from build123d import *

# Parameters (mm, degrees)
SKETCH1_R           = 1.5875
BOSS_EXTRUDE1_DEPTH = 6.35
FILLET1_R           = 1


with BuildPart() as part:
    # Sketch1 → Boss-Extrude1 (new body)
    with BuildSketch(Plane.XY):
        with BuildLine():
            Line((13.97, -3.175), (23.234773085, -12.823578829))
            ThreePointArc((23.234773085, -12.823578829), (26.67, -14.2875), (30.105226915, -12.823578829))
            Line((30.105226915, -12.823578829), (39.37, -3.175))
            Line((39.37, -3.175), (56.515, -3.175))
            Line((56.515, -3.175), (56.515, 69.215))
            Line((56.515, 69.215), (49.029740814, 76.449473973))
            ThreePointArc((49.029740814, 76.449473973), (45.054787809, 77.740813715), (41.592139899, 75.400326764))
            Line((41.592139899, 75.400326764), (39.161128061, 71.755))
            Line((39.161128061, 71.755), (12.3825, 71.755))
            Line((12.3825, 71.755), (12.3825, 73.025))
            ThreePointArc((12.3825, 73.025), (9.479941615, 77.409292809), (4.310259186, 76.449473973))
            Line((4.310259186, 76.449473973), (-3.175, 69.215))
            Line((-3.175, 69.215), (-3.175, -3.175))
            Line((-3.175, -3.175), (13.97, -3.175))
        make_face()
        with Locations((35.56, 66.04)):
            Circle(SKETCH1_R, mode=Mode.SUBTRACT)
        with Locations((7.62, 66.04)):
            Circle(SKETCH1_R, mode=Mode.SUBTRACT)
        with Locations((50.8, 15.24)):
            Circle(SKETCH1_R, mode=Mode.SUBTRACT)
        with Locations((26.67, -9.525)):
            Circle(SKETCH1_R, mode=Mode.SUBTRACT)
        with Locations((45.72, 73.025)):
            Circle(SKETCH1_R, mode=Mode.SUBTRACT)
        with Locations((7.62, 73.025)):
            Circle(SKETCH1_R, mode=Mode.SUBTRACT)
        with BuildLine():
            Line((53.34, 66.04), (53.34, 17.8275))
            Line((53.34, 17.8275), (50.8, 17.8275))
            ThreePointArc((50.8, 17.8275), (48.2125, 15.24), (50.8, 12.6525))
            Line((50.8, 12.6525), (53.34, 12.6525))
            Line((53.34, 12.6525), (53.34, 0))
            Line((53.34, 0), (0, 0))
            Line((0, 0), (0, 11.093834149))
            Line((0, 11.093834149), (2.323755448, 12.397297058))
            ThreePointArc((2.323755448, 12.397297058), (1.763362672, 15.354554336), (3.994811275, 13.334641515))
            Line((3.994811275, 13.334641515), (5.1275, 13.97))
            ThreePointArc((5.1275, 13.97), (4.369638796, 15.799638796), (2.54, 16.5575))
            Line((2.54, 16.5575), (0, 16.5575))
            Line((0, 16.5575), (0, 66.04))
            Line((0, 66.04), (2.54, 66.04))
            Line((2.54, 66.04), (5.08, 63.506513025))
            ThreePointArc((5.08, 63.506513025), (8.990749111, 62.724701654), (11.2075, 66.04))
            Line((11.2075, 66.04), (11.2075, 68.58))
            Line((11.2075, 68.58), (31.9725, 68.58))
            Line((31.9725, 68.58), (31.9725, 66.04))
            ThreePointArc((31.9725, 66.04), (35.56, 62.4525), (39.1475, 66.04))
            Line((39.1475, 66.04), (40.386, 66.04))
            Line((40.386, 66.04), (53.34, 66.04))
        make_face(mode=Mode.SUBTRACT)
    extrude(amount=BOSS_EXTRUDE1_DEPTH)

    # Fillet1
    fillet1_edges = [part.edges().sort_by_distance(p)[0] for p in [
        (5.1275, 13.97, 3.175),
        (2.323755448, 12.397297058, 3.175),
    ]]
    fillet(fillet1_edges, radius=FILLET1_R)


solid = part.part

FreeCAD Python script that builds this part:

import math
import FreeCAD as App
import Part
import Sketcher

V = App.Vector
Q = App.Units.Quantity


def edges_at(feature, points):
    """Names of the edges that pass closest to the given points."""
    edges = feature.Shape.Edges
    near = lambda p: min(range(len(edges)), key=lambda i: edges[i].distToShape(Part.Vertex(*p))[0])
    return sorted({f"Edge{near(p) + 1}" for p in points})

doc = App.newDocument("Part")
params = doc.addObject("Spreadsheet::Sheet", "Params")
for row, (alias, value) in enumerate([
    ("sketch1_diameter", "0.125 in"),
    ("sketch1_width", "0.1 in"),
    ("sketch1_width2", "2.1 in"),
    ("sketch1_radius", "0.1875 in"),
    ("sketch1_height", "2.85 in"),
    ("pad1_length", "0.25 in"),
    ("fillet_radius", "1 mm"),
], start=1):
    params.set(f"A{row}", alias)
    params.set(f"B{row}", "=" + value)
    params.setAlias(f"B{row}", alias)

body = doc.addObject("PartDesign::Body", "Body")

sketch1 = body.newObject("Sketcher::SketchObject", "Sketch")
sketch1.AttachmentSupport = (doc.getObject("XY_Plane"), [""])
sketch1.MapMode = "FlatFace"
sketch1.addGeometry(Part.LineSegment(V(14, -3.2, 0), V(23.2, -12.8, 0)), False)
sketch1.addGeometry(Part.ArcOfCircle(Part.Circle(V(26.7, -9.5, 0), V(0, 0, 1), 4.8), math.radians(-136), math.radians(-44)), False)
sketch1.addGeometry(Part.LineSegment(V(30.1, -12.8, 0), V(39.4, -3.2, 0)), False)
sketch1.addGeometry(Part.LineSegment(V(39.4, -3.2, 0), V(56.5, -3.2, 0)), False)
sketch1.addGeometry(Part.LineSegment(V(56.5, -3.2, 0), V(56.5, 69.2, 0)), False)
sketch1.addGeometry(Part.LineSegment(V(56.5, 69.2, 0), V(49, 76.4, 0)), False)
sketch1.addGeometry(Part.ArcOfCircle(Part.Circle(V(45.7, 73, 0), V(0, 0, 1), 4.8), math.radians(46), math.radians(150)), False)
sketch1.addGeometry(Part.LineSegment(V(41.6, 75.4, 0), V(39.2, 71.8, 0)), False)
sketch1.addGeometry(Part.LineSegment(V(39.2, 71.8, 0), V(12.4, 71.8, 0)), False)
sketch1.addGeometry(Part.LineSegment(V(12.4, 71.8, 0), V(12.4, 73, 0)), False)
sketch1.addGeometry(Part.ArcOfCircle(Part.Circle(V(7.6, 73, 0), V(0, 0, 1), 4.8), math.radians(0), math.radians(134)), False)
sketch1.addGeometry(Part.LineSegment(V(4.3, 76.4, 0), V(-3.2, 69.2, 0)), False)
sketch1.addGeometry(Part.LineSegment(V(-3.2, 69.2, 0), V(-3.2, -3.2, 0)), False)
sketch1.addGeometry(Part.LineSegment(V(-3.2, -3.2, 0), V(14, -3.2, 0)), False)
sketch1.addGeometry(Part.Circle(V(26.7, -9.5, 0), V(0, 0, 1), 1.6), False)
sketch1.addGeometry(Part.Circle(V(50.8, 15.2, 0), V(0, 0, 1), 1.6), False)
sketch1.addGeometry(Part.LineSegment(V(39.1, 66, 0), V(53.3, 66, 0)), False)
sketch1.addGeometry(Part.LineSegment(V(53.3, 66, 0), V(53.3, 17.8, 0)), False)
sketch1.addGeometry(Part.LineSegment(V(53.3, 17.8, 0), V(50.8, 17.8, 0)), False)
sketch1.addGeometry(Part.ArcOfCircle(Part.Circle(V(50.8, 15.2, 0), V(0, 0, 1), 2.6), math.radians(90), math.radians(270)), False)
sketch1.addGeometry(Part.LineSegment(V(50.8, 12.7, 0), V(53.3, 12.7, 0)), False)
sketch1.addGeometry(Part.LineSegment(V(53.3, 12.7, 0), V(53.3, 0, 0)), False)
sketch1.addGeometry(Part.LineSegment(V(53.3, 0, 0), V(0, 0, 0)), False)
sketch1.addGeometry(Part.LineSegment(V(0, 0, 0), V(0, 11.1, 0)), False)
sketch1.addGeometry(Part.LineSegment(V(0, 11.1, 0), V(2.3, 12.4, 0)), False)
sketch1.addGeometry(Part.ArcOfCircle(Part.Circle(V(2.5, 14, 0), V(0, 0, 1), 1.6), math.radians(-24), math.radians(262)), False)
sketch1.addGeometry(Part.LineSegment(V(4, 13.3, 0), V(5.1, 14, 0)), False)
sketch1.addGeometry(Part.ArcOfCircle(Part.Circle(V(2.5, 14, 0), V(0, 0, 1), 2.6), math.radians(0), math.radians(90)), False)
sketch1.addGeometry(Part.LineSegment(V(2.5, 16.6, 0), V(0, 16.6, 0)), False)
sketch1.addGeometry(Part.LineSegment(V(0, 16.6, 0), V(0, 66, 0)), False)
sketch1.addGeometry(Part.LineSegment(V(0, 66, 0), V(2.5, 66, 0)), False)
sketch1.addGeometry(Part.LineSegment(V(2.5, 66, 0), V(5.1, 63.5, 0)), False)
sketch1.addGeometry(Part.ArcOfCircle(Part.Circle(V(7.6, 66, 0), V(0, 0, 1), 3.6), math.radians(-135), math.radians(0)), False)
sketch1.addGeometry(Part.LineSegment(V(11.2, 66, 0), V(11.2, 68.6, 0)), False)
sketch1.addGeometry(Part.LineSegment(V(11.2, 68.6, 0), V(32, 68.6, 0)), False)
sketch1.addGeometry(Part.LineSegment(V(32, 68.6, 0), V(32, 66, 0)), False)
sketch1.addGeometry(Part.ArcOfCircle(Part.Circle(V(35.6, 66, 0), V(0, 0, 1), 3.6), math.radians(180), math.radians(360)), False)
sketch1.addGeometry(Part.Circle(V(7.6, 66, 0), V(0, 0, 1), 1.6), False)
sketch1.addGeometry(Part.Circle(V(7.6, 73, 0), V(0, 0, 1), 1.6), False)
sketch1.addGeometry(Part.Circle(V(35.6, 66, 0), V(0, 0, 1), 1.6), False)
sketch1.addGeometry(Part.Circle(V(45.7, 73, 0), V(0, 0, 1), 1.6), False)
sketch1.addConstraint(Sketcher.Constraint("Tangent", 0, 2, 1, 1))
sketch1.addConstraint(Sketcher.Constraint("Tangent", 1, 2, 2, 1))
sketch1.addConstraint(Sketcher.Constraint("Coincident", 2, 2, 3, 1))
sketch1.addConstraint(Sketcher.Constraint("Coincident", 3, 2, 4, 1))
sketch1.addConstraint(Sketcher.Constraint("Coincident", 4, 2, 5, 1))
sketch1.addConstraint(Sketcher.Constraint("Tangent", 5, 2, 6, 1))
sketch1.addConstraint(Sketcher.Constraint("Coincident", 6, 2, 7, 1))
sketch1.addConstraint(Sketcher.Constraint("Coincident", 7, 2, 8, 1))
sketch1.addConstraint(Sketcher.Constraint("Coincident", 8, 2, 9, 1))
sketch1.addConstraint(Sketcher.Constraint("Tangent", 9, 2, 10, 1))
sketch1.addConstraint(Sketcher.Constraint("Tangent", 10, 2, 11, 1))
sketch1.addConstraint(Sketcher.Constraint("Coincident", 11, 2, 12, 1))
sketch1.addConstraint(Sketcher.Constraint("Coincident", 12, 2, 13, 1))
sketch1.addConstraint(Sketcher.Constraint("Coincident", 13, 2, 0, 1))
sketch1.addConstraint(Sketcher.Constraint("Coincident", 16, 2, 17, 1))
sketch1.addConstraint(Sketcher.Constraint("Coincident", 17, 2, 18, 1))
sketch1.addConstraint(Sketcher.Constraint("Tangent", 18, 2, 19, 1))
sketch1.addConstraint(Sketcher.Constraint("Tangent", 19, 2, 20, 1))
sketch1.addConstraint(Sketcher.Constraint("Coincident", 20, 2, 21, 1))
sketch1.addConstraint(Sketcher.Constraint("Coincident", 21, 2, 22, 1))
sketch1.addConstraint(Sketcher.Constraint("Coincident", 22, 2, 23, 1))
sketch1.addConstraint(Sketcher.Constraint("Coincident", 23, 2, 24, 1))
sketch1.addConstraint(Sketcher.Constraint("Coincident", 24, 2, 25, 2))
sketch1.addConstraint(Sketcher.Constraint("Coincident", 25, 1, 26, 1))
sketch1.addConstraint(Sketcher.Constraint("Coincident", 26, 2, 27, 1))
sketch1.addConstraint(Sketcher.Constraint("Tangent", 27, 2, 28, 1))
sketch1.addConstraint(Sketcher.Constraint("Coincident", 28, 2, 29, 1))
sketch1.addConstraint(Sketcher.Constraint("Coincident", 29, 2, 30, 1))
sketch1.addConstraint(Sketcher.Constraint("Coincident", 30, 2, 31, 1))
sketch1.addConstraint(Sketcher.Constraint("Coincident", 31, 2, 32, 1))
sketch1.addConstraint(Sketcher.Constraint("Tangent", 32, 2, 33, 1))
sketch1.addConstraint(Sketcher.Constraint("Coincident", 33, 2, 34, 1))
sketch1.addConstraint(Sketcher.Constraint("Coincident", 34, 2, 35, 1))
sketch1.addConstraint(Sketcher.Constraint("Tangent", 35, 2, 36, 1))
sketch1.addConstraint(Sketcher.Constraint("Coincident", 36, 2, 16, 1))
sketch1.addConstraint(Sketcher.Constraint("Horizontal", 3))
sketch1.addConstraint(Sketcher.Constraint("Vertical", 4))
sketch1.addConstraint(Sketcher.Constraint("Horizontal", 8))
sketch1.addConstraint(Sketcher.Constraint("Vertical", 9))
sketch1.addConstraint(Sketcher.Constraint("Vertical", 12))
sketch1.addConstraint(Sketcher.Constraint("Horizontal", 13))
sketch1.addConstraint(Sketcher.Constraint("Horizontal", 16))
sketch1.addConstraint(Sketcher.Constraint("Vertical", 17))
sketch1.addConstraint(Sketcher.Constraint("Horizontal", 18))
sketch1.addConstraint(Sketcher.Constraint("Horizontal", 20))
sketch1.addConstraint(Sketcher.Constraint("Vertical", 21))
sketch1.addConstraint(Sketcher.Constraint("Horizontal", 22))
sketch1.addConstraint(Sketcher.Constraint("Vertical", 23))
sketch1.addConstraint(Sketcher.Constraint("Horizontal", 28))
sketch1.addConstraint(Sketcher.Constraint("Vertical", 29))
sketch1.addConstraint(Sketcher.Constraint("Horizontal", 30))
sketch1.addConstraint(Sketcher.Constraint("Vertical", 33))
sketch1.addConstraint(Sketcher.Constraint("Horizontal", 34))
sketch1.addConstraint(Sketcher.Constraint("Vertical", 35))
sketch1.addConstraint(Sketcher.Constraint("Coincident", 22, 2, -1, 1))
sketch1.addConstraint(Sketcher.Constraint("Coincident", 14, 3, 1, 3))
sketch1.addConstraint(Sketcher.Constraint("Coincident", 19, 3, 15, 3))
sketch1.addConstraint(Sketcher.Constraint("Coincident", 27, 3, 25, 3))
sketch1.addConstraint(Sketcher.Constraint("Coincident", 37, 3, 32, 3))
sketch1.addConstraint(Sketcher.Constraint("Coincident", 38, 3, 10, 3))
sketch1.addConstraint(Sketcher.Constraint("Coincident", 39, 3, 36, 3))
sketch1.addConstraint(Sketcher.Constraint("Coincident", 40, 3, 6, 3))
sketch1.addConstraint(Sketcher.Constraint("Equal", 1, 6))
sketch1.addConstraint(Sketcher.Constraint("Equal", 6, 10))
sketch1.addConstraint(Sketcher.Constraint("Equal", 14, 15))
sketch1.addConstraint(Sketcher.Constraint("Equal", 15, 25))
sketch1.addConstraint(Sketcher.Constraint("Equal", 19, 27))
sketch1.addConstraint(Sketcher.Constraint("Equal", 32, 36))
sketch1.addConstraint(Sketcher.Constraint("Equal", 25, 37))
sketch1.addConstraint(Sketcher.Constraint("Equal", 37, 38))
sketch1.addConstraint(Sketcher.Constraint("Equal", 38, 39))
sketch1.addConstraint(Sketcher.Constraint("Equal", 39, 40))
sketch1.addConstraint(Sketcher.Constraint("PointOnObject", 28, 2, -2))
sketch1.addConstraint(Sketcher.Constraint("Parallel", 24, 26))
sketch1.addConstraint(Sketcher.Constraint("Horizontal", 6, 3, 10, 3))
sketch1.addConstraint(Sketcher.Constraint("Horizontal", 32, 3, 36, 3))
sketch1.addConstraint(Sketcher.Constraint("Horizontal", 0, 2, 1, 2))
sketch1.addConstraint(Sketcher.Constraint("Horizontal", 5, 2, 10, 2))
sketch1.addConstraint(Sketcher.Constraint("Horizontal", 4, 2, 11, 2))
sketch1.addConstraint(Sketcher.Constraint("Horizontal", 3, 2, 12, 2))
sketch1.addConstraint(Sketcher.Constraint("Horizontal", 39, 3, 16, 2))
sketch1.addConstraint(Sketcher.Constraint("Horizontal", 27, 3, 26, 2))
sketch1.addConstraint(Sketcher.Constraint("Horizontal", 16, 2, 29, 2))
sketch1.addConstraint(Sketcher.Constraint("Vertical", 10, 3, 32, 3))
sketch1.addConstraint(Sketcher.Constraint("Vertical", 17, 2, 20, 2))
sketch1.addConstraint(Sketcher.Constraint("Vertical", 27, 2, 30, 2))
sketch1.addConstraint(Sketcher.Constraint("Equal", 3, 13))
sketch1.addConstraint(Sketcher.Constraint("Equal", 20, 28))
sketch1.addConstraint(Sketcher.Constraint("Equal", 30, 33))
sketch1.addConstraint(Sketcher.Constraint("Diameter", 14, Q("0.125 in")))
sketch1.addConstraint(Sketcher.Constraint("DistanceX", 18, 2, 18, 1, Q("0.1 in")))
sketch1.addConstraint(Sketcher.Constraint("DistanceX", 22, 2, 22, 1, Q("2.1 in")))
sketch1.addConstraint(Sketcher.Constraint("Radius", 1, Q("0.1875 in")))
sketch1.addConstraint(Sketcher.Constraint("DistanceY", 15, 3, 32, 3, Q("2 in")))
sketch1.addConstraint(Sketcher.Constraint("DistanceY", 4, 1, 4, 2, Q("2.85 in")))
sketch1.addConstraint(Sketcher.Constraint("DistanceY", 9, 1, 9, 2, Q("0.05 in")))
sketch1.addConstraint(Sketcher.Constraint("DistanceX", -1, 1, 6, 3, Q("1.8 in")))
sketch1.addConstraint(Sketcher.Constraint("DistanceX", -1, 1, 10, 3, Q("0.3 in")))
sketch1.addConstraint(Sketcher.Constraint("DistanceY", -1, 1, 15, 3, Q("0.6 in")))
sketch1.addConstraint(Sketcher.Constraint("DistanceX", -1, 1, 36, 3, Q("1.4 in")))
sketch1.addConstraint(Sketcher.Constraint("DistanceX", -1, 1, 31, 2, Q("0.2 in")))
sketch1.addConstraint(Sketcher.Constraint("DistanceX", 1, 3, 2, 2, Q("0.5 in")))
sketch1.addConstraint(Sketcher.Constraint("DistanceX", 3, 1, 3, 2, Q("0.675 in")))
sketch1.addConstraint(Sketcher.Constraint("DistanceY", -1, 1, 25, 3, Q("0.55 in")))
sketch1.addConstraint(Sketcher.Constraint("Radius", 19, 2.5875))
sketch1.addConstraint(Sketcher.Constraint("Radius", 32, 3.5875))
sketch1.addConstraint(Sketcher.Constraint("DistanceY", 1, 3, 6, 3, Q("3.25 in")))
sketch1.addConstraint(Sketcher.Constraint("DistanceY", 1, 3, 2, 2, Q("0.25 in")))
sketch1.addConstraint(Sketcher.Constraint("DistanceY", 1, 3, -1, 1, Q("0.375 in")))
sketch1.addConstraint(Sketcher.Constraint("DistanceX", 8, 2, 8, 1, 26.778628))
sketch1.addConstraint(Sketcher.Constraint("DistanceX", 6, 2, 5, 2, 7.437601))
sketch1.addConstraint(Sketcher.Constraint("DistanceY", 23, 1, 23, 2, 11.093834))
sketch1.addConstraint(Sketcher.Constraint("DistanceX", -1, 1, 25, 1, 3.994811))
sketch1.setExpression("Constraints[89]", "Params.sketch1_diameter")
sketch1.setExpression("Constraints[90]", "Params.sketch1_width")
sketch1.setExpression("Constraints[91]", "Params.sketch1_width2")
sketch1.setExpression("Constraints[92]", "Params.sketch1_radius")
sketch1.setExpression("Constraints[94]", "Params.sketch1_height")
pad1 = body.newObject("PartDesign::Pad", "Pad")
pad1.Profile = sketch1
pad1.setExpression("Length", "Params.pad1_length")
doc.recompute()

fillet = body.newObject("PartDesign::Fillet", "Fillet")
fillet.Base = (pad1, edges_at(pad1, [(5.128, 13.97, 3.175), (2.324, 12.397, 3.175)]))
fillet.setExpression("Radius", "Params.fillet_radius")

doc.recompute()
